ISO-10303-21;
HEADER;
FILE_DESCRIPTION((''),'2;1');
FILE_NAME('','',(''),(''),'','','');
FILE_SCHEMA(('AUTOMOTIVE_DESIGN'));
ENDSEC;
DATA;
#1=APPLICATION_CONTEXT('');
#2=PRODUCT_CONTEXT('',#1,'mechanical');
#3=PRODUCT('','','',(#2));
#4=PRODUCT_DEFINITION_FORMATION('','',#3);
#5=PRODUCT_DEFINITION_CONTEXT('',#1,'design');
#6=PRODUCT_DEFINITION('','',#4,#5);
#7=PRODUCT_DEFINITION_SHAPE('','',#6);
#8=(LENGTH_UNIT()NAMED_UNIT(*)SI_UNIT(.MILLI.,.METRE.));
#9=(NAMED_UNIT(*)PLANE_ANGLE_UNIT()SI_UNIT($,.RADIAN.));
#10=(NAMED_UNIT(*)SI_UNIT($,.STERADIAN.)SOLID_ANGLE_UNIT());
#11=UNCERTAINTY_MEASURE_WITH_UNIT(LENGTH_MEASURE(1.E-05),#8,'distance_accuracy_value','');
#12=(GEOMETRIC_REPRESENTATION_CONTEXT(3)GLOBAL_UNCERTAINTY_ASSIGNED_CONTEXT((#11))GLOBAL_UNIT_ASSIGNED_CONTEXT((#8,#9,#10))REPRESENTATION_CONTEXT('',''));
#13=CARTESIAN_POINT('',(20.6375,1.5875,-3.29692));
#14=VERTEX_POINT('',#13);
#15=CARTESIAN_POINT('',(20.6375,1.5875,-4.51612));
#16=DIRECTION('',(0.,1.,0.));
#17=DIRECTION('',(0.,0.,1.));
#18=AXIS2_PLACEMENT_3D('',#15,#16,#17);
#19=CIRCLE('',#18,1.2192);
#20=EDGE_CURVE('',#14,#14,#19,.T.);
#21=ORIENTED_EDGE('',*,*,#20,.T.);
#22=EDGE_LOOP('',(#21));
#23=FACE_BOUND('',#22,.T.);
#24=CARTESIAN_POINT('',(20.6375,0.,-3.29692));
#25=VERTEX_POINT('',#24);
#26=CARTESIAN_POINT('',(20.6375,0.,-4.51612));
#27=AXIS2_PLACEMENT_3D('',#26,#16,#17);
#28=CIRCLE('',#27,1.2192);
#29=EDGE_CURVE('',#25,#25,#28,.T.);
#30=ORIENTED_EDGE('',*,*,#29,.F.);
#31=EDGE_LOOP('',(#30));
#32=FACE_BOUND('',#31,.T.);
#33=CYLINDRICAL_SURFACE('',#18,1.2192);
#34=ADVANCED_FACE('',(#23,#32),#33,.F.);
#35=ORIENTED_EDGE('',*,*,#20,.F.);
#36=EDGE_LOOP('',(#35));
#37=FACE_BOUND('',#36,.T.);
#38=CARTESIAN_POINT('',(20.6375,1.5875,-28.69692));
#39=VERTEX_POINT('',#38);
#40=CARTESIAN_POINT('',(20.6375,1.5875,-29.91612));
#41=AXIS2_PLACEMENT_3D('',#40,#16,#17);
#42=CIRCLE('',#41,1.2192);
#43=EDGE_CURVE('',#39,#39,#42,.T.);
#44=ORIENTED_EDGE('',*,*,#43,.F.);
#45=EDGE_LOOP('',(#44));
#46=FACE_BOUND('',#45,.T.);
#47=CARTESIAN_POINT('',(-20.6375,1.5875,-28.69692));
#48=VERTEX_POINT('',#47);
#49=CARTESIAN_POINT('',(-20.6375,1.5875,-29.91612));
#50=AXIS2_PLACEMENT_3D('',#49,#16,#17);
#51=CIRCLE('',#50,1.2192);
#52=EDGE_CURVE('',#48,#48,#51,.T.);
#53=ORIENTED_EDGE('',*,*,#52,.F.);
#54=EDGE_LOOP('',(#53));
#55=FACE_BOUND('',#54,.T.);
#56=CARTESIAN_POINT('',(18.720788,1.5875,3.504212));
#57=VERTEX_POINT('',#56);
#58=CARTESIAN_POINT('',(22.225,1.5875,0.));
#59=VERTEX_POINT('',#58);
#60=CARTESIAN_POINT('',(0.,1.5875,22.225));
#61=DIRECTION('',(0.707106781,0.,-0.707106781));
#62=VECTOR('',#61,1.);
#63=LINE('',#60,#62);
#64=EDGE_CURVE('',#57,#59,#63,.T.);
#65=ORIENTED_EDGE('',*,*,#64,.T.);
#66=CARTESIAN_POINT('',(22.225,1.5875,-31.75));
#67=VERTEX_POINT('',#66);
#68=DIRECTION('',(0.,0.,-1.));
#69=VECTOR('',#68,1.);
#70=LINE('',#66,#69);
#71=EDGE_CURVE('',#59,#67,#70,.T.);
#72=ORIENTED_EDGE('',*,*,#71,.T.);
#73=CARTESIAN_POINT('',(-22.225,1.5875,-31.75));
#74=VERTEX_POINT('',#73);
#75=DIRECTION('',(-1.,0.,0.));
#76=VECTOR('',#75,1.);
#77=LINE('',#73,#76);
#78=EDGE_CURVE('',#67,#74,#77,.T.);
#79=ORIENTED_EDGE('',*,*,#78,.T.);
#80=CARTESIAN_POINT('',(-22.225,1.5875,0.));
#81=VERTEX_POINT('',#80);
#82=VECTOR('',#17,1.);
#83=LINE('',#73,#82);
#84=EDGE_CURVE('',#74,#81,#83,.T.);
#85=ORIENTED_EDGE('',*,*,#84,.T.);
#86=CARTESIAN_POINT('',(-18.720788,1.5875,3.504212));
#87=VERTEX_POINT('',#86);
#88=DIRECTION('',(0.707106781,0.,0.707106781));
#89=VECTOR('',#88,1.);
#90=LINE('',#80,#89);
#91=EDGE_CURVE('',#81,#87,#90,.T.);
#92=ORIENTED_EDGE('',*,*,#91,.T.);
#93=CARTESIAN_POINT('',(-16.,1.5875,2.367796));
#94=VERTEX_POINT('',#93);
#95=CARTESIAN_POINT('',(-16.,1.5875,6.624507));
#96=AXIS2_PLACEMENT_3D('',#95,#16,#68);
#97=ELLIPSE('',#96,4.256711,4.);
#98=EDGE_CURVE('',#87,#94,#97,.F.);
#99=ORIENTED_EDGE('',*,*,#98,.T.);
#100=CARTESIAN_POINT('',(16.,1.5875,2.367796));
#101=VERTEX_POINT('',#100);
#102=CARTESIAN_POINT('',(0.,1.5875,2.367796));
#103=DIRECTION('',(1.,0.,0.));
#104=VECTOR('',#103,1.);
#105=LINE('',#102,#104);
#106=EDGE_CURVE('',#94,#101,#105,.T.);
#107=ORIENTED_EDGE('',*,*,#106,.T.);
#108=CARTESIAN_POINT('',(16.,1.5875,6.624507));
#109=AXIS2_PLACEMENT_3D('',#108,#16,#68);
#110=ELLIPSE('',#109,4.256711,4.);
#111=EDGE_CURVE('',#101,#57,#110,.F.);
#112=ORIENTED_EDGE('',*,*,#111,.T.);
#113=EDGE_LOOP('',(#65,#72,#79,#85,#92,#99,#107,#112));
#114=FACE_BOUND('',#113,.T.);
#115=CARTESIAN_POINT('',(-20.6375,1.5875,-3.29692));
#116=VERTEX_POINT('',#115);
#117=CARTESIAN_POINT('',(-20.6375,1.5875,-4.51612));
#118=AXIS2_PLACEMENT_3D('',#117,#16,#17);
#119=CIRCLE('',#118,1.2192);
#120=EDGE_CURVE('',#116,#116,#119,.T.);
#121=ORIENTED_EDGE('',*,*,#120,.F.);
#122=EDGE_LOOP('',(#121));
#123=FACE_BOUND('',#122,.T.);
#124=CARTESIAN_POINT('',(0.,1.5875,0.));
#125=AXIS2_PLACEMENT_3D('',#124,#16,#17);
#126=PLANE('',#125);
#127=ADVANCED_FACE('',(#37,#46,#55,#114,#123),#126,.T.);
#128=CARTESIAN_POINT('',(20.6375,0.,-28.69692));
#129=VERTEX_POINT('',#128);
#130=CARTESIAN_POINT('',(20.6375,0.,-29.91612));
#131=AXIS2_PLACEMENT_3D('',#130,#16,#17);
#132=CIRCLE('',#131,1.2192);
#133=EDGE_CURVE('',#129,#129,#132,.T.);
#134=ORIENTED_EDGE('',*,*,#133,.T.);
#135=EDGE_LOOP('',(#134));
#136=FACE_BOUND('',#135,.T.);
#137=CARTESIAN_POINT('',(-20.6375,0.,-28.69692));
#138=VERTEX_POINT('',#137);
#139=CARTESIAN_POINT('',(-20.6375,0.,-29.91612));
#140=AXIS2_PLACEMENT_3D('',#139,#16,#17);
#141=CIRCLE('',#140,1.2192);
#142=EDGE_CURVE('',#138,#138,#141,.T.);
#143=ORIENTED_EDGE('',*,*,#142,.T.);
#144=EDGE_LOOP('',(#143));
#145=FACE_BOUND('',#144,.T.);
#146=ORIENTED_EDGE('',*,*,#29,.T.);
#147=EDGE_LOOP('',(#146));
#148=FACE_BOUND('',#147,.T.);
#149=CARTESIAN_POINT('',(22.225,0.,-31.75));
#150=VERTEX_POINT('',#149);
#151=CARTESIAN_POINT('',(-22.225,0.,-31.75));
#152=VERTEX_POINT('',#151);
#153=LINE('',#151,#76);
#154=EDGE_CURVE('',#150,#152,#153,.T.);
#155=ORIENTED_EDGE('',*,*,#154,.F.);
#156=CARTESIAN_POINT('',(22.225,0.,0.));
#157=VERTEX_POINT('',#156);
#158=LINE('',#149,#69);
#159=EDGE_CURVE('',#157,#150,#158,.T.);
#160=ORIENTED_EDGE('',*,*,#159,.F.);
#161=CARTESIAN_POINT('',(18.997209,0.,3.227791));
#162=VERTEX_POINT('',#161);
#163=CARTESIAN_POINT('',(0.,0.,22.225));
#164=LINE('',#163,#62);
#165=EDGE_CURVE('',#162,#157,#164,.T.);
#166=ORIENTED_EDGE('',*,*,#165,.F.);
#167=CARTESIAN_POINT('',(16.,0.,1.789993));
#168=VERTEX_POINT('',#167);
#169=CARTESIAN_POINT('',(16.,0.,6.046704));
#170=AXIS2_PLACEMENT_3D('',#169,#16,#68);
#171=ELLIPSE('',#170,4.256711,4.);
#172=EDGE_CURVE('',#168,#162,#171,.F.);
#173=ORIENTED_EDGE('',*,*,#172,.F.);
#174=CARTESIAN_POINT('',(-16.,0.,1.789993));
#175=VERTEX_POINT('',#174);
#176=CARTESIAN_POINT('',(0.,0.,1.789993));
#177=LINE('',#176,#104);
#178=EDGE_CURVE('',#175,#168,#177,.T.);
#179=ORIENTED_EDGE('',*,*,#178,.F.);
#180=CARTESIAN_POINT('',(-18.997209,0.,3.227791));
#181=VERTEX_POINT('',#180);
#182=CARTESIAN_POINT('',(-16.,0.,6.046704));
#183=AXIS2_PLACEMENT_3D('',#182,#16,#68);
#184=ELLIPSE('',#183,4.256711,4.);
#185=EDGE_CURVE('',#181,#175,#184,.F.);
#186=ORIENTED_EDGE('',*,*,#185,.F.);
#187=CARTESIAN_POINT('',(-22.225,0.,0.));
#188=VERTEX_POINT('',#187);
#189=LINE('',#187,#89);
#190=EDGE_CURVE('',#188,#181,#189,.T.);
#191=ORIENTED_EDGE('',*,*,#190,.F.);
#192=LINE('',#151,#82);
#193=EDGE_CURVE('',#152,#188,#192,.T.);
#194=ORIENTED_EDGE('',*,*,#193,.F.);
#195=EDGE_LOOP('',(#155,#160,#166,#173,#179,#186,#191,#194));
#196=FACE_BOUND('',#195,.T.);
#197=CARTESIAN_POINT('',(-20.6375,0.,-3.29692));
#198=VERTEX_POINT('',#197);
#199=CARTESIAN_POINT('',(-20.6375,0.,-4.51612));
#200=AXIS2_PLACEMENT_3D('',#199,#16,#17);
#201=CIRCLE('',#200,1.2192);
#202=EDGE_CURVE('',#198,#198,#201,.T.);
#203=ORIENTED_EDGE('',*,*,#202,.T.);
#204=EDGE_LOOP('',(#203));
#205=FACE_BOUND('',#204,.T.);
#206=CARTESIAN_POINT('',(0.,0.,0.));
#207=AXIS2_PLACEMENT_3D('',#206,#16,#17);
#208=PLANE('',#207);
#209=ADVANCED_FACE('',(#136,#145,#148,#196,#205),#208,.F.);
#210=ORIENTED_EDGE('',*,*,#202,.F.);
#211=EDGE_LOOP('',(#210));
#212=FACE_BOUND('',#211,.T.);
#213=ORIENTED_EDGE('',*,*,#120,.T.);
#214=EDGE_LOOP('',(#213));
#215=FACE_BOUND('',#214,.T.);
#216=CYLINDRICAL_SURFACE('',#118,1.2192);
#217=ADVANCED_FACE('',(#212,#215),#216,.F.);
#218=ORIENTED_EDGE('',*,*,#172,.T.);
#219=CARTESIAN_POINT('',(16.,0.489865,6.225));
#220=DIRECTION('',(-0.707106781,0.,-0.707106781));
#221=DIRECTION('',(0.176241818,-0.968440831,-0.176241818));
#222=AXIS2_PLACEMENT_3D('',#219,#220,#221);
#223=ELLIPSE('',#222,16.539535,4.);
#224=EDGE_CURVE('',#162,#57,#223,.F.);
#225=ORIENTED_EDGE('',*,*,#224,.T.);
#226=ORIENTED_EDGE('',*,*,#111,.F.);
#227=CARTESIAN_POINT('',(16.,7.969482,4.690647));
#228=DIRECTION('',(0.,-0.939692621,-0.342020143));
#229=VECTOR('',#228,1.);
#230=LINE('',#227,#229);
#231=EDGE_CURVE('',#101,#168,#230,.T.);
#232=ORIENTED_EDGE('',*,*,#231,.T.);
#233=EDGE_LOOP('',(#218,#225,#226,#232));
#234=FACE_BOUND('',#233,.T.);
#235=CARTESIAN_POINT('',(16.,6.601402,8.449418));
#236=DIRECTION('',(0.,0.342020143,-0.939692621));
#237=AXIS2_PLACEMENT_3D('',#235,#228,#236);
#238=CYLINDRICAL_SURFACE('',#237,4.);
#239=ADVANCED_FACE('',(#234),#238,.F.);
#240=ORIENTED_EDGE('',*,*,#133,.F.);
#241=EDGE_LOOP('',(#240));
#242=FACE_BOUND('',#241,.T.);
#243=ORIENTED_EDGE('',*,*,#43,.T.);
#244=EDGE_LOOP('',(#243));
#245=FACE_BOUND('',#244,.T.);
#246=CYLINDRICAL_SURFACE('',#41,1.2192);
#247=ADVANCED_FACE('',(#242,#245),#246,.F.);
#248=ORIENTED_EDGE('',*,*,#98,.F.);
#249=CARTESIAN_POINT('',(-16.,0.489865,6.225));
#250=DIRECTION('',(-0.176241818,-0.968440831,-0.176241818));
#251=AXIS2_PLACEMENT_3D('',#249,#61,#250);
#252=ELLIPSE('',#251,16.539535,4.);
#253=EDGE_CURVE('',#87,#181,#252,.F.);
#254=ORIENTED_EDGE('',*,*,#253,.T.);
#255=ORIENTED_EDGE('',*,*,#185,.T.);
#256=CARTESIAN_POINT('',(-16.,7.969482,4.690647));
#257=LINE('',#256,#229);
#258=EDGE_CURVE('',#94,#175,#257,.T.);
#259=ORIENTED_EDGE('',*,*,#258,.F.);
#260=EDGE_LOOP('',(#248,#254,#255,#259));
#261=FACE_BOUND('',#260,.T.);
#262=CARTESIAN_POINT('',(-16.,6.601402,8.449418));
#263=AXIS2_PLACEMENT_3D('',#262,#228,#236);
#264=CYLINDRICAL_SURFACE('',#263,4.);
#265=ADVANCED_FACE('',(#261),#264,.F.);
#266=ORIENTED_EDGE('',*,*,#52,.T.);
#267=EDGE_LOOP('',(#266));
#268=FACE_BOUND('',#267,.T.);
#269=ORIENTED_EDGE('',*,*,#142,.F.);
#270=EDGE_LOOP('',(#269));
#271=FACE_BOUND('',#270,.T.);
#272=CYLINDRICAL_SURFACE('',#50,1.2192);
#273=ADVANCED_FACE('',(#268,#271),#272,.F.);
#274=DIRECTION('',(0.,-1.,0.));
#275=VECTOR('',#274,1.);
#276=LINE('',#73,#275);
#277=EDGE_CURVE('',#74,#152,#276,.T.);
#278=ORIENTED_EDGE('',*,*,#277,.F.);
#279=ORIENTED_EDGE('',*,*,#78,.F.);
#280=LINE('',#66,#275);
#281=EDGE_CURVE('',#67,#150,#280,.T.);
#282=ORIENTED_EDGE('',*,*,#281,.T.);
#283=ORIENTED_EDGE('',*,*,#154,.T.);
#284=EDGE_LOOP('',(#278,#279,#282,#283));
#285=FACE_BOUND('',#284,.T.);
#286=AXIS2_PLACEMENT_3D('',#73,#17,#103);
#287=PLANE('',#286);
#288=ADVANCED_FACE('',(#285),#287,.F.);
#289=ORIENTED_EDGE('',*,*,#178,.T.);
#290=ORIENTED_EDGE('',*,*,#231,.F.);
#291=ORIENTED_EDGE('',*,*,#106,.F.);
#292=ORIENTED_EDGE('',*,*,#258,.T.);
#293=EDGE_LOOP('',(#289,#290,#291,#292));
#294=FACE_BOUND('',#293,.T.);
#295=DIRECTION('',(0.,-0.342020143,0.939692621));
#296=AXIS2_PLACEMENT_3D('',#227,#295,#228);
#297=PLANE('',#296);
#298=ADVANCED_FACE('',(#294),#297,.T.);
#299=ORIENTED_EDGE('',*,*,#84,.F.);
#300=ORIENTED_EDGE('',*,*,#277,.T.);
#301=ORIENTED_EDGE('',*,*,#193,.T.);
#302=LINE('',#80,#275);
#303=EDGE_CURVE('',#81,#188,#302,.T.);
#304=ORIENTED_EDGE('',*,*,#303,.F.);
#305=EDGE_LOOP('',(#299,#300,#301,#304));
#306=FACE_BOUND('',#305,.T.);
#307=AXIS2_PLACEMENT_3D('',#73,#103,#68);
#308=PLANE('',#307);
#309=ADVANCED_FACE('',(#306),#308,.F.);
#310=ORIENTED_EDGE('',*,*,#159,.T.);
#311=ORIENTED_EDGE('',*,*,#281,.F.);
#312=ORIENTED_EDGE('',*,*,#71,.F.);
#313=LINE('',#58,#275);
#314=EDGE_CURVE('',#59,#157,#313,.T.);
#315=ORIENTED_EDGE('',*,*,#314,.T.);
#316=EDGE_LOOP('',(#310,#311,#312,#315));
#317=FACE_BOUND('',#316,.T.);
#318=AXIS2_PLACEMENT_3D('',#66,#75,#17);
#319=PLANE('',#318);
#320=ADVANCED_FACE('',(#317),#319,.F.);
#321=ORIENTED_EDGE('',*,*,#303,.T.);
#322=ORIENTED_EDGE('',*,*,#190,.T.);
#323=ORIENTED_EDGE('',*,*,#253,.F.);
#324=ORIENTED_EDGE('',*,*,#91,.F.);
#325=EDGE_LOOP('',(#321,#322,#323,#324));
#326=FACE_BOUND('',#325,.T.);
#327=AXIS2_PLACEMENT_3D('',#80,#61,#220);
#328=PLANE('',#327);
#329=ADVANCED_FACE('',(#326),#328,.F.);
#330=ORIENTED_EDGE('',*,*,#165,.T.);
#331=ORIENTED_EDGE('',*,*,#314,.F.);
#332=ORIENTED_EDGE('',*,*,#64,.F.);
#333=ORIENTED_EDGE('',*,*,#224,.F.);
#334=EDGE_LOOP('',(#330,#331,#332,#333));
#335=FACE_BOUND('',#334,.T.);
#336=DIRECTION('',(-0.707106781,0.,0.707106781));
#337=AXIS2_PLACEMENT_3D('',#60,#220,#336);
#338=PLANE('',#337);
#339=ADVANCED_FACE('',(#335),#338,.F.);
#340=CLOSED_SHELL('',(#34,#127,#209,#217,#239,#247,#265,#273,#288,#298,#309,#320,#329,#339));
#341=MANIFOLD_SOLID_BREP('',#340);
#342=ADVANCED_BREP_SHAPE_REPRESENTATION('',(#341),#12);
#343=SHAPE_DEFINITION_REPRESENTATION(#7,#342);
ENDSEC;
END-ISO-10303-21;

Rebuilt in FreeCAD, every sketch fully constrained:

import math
import FreeCAD as App
import Part
import Sketcher

V = App.Vector
Q = App.Units.Quantity


def add_polygon(sketch, points):
    """Adds a closed chain of lines whose ends are joined by coincident constraints."""
    first, n = sketch.GeometryCount, len(points)
    for a, b in zip(points, points[1:] + points[:1]):
        sketch.addGeometry(Part.LineSegment(App.Vector(*a, 0), App.Vector(*b, 0)), False)
    for i in range(n):
        sketch.addConstraint(Sketcher.Constraint("Coincident", first + i, 2, first + (i + 1) % n, 1))

doc = App.newDocument("Part")
params = doc.addObject("Spreadsheet::Sheet", "Params")
for row, (alias, value) in enumerate([
    ("sketch1_width", "1.75 in"),
    ("sketch1_height", "1.25 in"),
    ("pad1_length", "0.0625 in"),
    ("sketch3_diameter", "0.096 in"),
    ("hole_diameter", "0.096 in"),
], start=1):
    params.set(f"A{row}", alias)
    params.set(f"B{row}", "=" + value)
    params.setAlias(f"B{row}", alias)

body = doc.addObject("PartDesign::Body", "Body")

sketch1 = body.newObject("Sketcher::SketchObject", "Sketch")
sketch1.AttachmentSupport = (doc.getObject("XZ_Plane"), [""])
sketch1.MapMode = "FlatFace"
add_polygon(sketch1, [(-22, 0), (0, 22), (22, 0), (22, -32), (-22, -32)])
sketch1.addConstraint(Sketcher.Constraint("Vertical", 2))
sketch1.addConstraint(Sketcher.Constraint("Horizontal", 3))
sketch1.addConstraint(Sketcher.Constraint("Vertical", 4))
sketch1.addConstraint(Sketcher.Constraint("Symmetric", 1, 2, 4, 2, -1, 1))
sketch1.addConstraint(Sketcher.Constraint("PointOnObject", 0, 2, -2))
sketch1.addConstraint(Sketcher.Constraint("PointOnObject", 1, 2, -1))
sketch1.addConstraint(Sketcher.Constraint("Perpendicular", 0, 1))
sketch1.addConstraint(Sketcher.Constraint("DistanceX", 3, 2, 3, 1, Q("1.75 in")))
sketch1.addConstraint(Sketcher.Constraint("DistanceY", 2, 2, 2, 1, Q("1.25 in")))
sketch1.setExpression("Constraints[12]", "Params.sketch1_width")
sketch1.setExpression("Constraints[13]", "Params.sketch1_height")
pad1 = body.newObject("PartDesign::Pad", "Pad")
pad1.Profile = sketch1
pad1.setExpression("Length", "Params.pad1_length")
pad1.Reversed = True

sketch2 = body.newObject("Sketcher::SketchObject", "Sketch001")
sketch2.Placement = App.Placement(V(0, 17.622291, -73.29327), App.Rotation(V(1, 0, 0), V(0, 0.342020143, -0.939692621), V(0, 0.939692621, 0.342020143), "ZXY"))
sketch2.addGeometry(Part.LineSegment(V(0, -95.8, 0), V(19, -77.9, 0)), False)
sketch2.addGeometry(Part.ArcOfCircle(Part.Circle(V(16, -80.6, 0), V(0, 0, 1), 4), math.radians(41), math.radians(90)), False)
sketch2.addGeometry(Part.LineSegment(V(16, -76.6, 0), V(-16, -76.6, 0)), False)
sketch2.addGeometry(Part.ArcOfCircle(Part.Circle(V(-16, -80.6, 0), V(0, 0, 1), 4), math.radians(90), math.radians(139)), False)
sketch2.addGeometry(Part.LineSegment(V(-19, -77.9, 0), V(0, -95.8, 0)), False)
sketch2.addConstraint(Sketcher.Constraint("Coincident", 0, 2, 1, 1))
sketch2.addConstraint(Sketcher.Constraint("Tangent", 1, 2, 2, 1))
sketch2.addConstraint(Sketcher.Constraint("Tangent", 2, 2, 3, 1))
sketch2.addConstraint(Sketcher.Constraint("Coincident", 3, 2, 4, 1))
sketch2.addConstraint(Sketcher.Constraint("Coincident", 4, 2, 0, 1))
sketch2.addConstraint(Sketcher.Constraint("Horizontal", 2))
sketch2.addConstraint(Sketcher.Constraint("Equal", 1, 3))
sketch2.addConstraint(Sketcher.Constraint("Symmetric", 0, 2, 3, 2, -2))
sketch2.addConstraint(Sketcher.Constraint("PointOnObject", 4, 2, -2))
sketch2.addConstraint(Sketcher.Constraint("Radius", 1, 4.0))
sketch2.addConstraint(Sketcher.Constraint("DistanceX", 2, 2, 2, 1, 32.0))
sketch2.addConstraint(Sketcher.Constraint("Distance", 0, 26.06859))
sketch2.addConstraint(Sketcher.Constraint("DistanceX", -1, 1, 0, 2, 18.997209))
sketch2.addConstraint(Sketcher.Constraint("DistanceY", 4, 2, -1, 1, 95.784992))
pocket1 = body.newObject("PartDesign::Pocket", "Pocket")
pocket1.Profile = sketch2
pocket1.Type = "ThroughAll"
pocket1.Reversed = True

sketch3 = body.newObject("Sketcher::SketchObject", "Sketch002")
sketch3.AttachmentSupport = (doc.getObject("XZ_Plane"), [""])
sketch3.MapMode = "FlatFace"
sketch3.AttachmentOffset = App.Placement(V(0, 0, -0.0625 * 25.4), App.Rotation())
sketch3.addGeometry(Part.Circle(V(20.6, -4.5, 0), V(0, 0, 1), 1.2), False)
sketch3.addGeometry(Part.Circle(V(20.6, -29.9, 0), V(0, 0, 1), 1.2), False)
sketch3.addGeometry(Part.Circle(V(-20.6, -29.9, 0), V(0, 0, 1), 1.2), False)
sketch3.addGeometry(Part.Circle(V(-20.6, -4.5, 0), V(0, 0, 1), 1.2), False)
sketch3.addConstraint(Sketcher.Constraint("Equal", 0, 1))
sketch3.addConstraint(Sketcher.Constraint("Equal", 1, 2))
sketch3.addConstraint(Sketcher.Constraint("Equal", 2, 3))
sketch3.addConstraint(Sketcher.Constraint("Symmetric", 1, 3, 2, 3, -2))
sketch3.addConstraint(Sketcher.Constraint("Symmetric", 0, 3, 3, 3, -2))
sketch3.addConstraint(Sketcher.Constraint("Vertical", 0, 3, 1, 3))
sketch3.addConstraint(Sketcher.Constraint("Diameter", 0, Q("0.096 in")))
sketch3.addConstraint(Sketcher.Constraint("DistanceY", 1, 3, 0, 3, Q("1 in")))
sketch3.addConstraint(Sketcher.Constraint("DistanceX", -1, 1, 0, 3, Q("0.8125 in")))
sketch3.addConstraint(Sketcher.Constraint("DistanceY", 0, 3, -1, 1, Q("0.1778 in")))
sketch3.setExpression("Constraints[6]", "Params.sketch3_diameter")
doc.recompute()
hole = body.newObject("PartDesign::Hole", "Hole")
hole.Profile = sketch3
hole.ThreadType = "None"
hole.setExpression("Diameter", "Params.hole_diameter")
hole.DepthType = "ThroughAll"
hole.Reversed = True

doc.recompute()
